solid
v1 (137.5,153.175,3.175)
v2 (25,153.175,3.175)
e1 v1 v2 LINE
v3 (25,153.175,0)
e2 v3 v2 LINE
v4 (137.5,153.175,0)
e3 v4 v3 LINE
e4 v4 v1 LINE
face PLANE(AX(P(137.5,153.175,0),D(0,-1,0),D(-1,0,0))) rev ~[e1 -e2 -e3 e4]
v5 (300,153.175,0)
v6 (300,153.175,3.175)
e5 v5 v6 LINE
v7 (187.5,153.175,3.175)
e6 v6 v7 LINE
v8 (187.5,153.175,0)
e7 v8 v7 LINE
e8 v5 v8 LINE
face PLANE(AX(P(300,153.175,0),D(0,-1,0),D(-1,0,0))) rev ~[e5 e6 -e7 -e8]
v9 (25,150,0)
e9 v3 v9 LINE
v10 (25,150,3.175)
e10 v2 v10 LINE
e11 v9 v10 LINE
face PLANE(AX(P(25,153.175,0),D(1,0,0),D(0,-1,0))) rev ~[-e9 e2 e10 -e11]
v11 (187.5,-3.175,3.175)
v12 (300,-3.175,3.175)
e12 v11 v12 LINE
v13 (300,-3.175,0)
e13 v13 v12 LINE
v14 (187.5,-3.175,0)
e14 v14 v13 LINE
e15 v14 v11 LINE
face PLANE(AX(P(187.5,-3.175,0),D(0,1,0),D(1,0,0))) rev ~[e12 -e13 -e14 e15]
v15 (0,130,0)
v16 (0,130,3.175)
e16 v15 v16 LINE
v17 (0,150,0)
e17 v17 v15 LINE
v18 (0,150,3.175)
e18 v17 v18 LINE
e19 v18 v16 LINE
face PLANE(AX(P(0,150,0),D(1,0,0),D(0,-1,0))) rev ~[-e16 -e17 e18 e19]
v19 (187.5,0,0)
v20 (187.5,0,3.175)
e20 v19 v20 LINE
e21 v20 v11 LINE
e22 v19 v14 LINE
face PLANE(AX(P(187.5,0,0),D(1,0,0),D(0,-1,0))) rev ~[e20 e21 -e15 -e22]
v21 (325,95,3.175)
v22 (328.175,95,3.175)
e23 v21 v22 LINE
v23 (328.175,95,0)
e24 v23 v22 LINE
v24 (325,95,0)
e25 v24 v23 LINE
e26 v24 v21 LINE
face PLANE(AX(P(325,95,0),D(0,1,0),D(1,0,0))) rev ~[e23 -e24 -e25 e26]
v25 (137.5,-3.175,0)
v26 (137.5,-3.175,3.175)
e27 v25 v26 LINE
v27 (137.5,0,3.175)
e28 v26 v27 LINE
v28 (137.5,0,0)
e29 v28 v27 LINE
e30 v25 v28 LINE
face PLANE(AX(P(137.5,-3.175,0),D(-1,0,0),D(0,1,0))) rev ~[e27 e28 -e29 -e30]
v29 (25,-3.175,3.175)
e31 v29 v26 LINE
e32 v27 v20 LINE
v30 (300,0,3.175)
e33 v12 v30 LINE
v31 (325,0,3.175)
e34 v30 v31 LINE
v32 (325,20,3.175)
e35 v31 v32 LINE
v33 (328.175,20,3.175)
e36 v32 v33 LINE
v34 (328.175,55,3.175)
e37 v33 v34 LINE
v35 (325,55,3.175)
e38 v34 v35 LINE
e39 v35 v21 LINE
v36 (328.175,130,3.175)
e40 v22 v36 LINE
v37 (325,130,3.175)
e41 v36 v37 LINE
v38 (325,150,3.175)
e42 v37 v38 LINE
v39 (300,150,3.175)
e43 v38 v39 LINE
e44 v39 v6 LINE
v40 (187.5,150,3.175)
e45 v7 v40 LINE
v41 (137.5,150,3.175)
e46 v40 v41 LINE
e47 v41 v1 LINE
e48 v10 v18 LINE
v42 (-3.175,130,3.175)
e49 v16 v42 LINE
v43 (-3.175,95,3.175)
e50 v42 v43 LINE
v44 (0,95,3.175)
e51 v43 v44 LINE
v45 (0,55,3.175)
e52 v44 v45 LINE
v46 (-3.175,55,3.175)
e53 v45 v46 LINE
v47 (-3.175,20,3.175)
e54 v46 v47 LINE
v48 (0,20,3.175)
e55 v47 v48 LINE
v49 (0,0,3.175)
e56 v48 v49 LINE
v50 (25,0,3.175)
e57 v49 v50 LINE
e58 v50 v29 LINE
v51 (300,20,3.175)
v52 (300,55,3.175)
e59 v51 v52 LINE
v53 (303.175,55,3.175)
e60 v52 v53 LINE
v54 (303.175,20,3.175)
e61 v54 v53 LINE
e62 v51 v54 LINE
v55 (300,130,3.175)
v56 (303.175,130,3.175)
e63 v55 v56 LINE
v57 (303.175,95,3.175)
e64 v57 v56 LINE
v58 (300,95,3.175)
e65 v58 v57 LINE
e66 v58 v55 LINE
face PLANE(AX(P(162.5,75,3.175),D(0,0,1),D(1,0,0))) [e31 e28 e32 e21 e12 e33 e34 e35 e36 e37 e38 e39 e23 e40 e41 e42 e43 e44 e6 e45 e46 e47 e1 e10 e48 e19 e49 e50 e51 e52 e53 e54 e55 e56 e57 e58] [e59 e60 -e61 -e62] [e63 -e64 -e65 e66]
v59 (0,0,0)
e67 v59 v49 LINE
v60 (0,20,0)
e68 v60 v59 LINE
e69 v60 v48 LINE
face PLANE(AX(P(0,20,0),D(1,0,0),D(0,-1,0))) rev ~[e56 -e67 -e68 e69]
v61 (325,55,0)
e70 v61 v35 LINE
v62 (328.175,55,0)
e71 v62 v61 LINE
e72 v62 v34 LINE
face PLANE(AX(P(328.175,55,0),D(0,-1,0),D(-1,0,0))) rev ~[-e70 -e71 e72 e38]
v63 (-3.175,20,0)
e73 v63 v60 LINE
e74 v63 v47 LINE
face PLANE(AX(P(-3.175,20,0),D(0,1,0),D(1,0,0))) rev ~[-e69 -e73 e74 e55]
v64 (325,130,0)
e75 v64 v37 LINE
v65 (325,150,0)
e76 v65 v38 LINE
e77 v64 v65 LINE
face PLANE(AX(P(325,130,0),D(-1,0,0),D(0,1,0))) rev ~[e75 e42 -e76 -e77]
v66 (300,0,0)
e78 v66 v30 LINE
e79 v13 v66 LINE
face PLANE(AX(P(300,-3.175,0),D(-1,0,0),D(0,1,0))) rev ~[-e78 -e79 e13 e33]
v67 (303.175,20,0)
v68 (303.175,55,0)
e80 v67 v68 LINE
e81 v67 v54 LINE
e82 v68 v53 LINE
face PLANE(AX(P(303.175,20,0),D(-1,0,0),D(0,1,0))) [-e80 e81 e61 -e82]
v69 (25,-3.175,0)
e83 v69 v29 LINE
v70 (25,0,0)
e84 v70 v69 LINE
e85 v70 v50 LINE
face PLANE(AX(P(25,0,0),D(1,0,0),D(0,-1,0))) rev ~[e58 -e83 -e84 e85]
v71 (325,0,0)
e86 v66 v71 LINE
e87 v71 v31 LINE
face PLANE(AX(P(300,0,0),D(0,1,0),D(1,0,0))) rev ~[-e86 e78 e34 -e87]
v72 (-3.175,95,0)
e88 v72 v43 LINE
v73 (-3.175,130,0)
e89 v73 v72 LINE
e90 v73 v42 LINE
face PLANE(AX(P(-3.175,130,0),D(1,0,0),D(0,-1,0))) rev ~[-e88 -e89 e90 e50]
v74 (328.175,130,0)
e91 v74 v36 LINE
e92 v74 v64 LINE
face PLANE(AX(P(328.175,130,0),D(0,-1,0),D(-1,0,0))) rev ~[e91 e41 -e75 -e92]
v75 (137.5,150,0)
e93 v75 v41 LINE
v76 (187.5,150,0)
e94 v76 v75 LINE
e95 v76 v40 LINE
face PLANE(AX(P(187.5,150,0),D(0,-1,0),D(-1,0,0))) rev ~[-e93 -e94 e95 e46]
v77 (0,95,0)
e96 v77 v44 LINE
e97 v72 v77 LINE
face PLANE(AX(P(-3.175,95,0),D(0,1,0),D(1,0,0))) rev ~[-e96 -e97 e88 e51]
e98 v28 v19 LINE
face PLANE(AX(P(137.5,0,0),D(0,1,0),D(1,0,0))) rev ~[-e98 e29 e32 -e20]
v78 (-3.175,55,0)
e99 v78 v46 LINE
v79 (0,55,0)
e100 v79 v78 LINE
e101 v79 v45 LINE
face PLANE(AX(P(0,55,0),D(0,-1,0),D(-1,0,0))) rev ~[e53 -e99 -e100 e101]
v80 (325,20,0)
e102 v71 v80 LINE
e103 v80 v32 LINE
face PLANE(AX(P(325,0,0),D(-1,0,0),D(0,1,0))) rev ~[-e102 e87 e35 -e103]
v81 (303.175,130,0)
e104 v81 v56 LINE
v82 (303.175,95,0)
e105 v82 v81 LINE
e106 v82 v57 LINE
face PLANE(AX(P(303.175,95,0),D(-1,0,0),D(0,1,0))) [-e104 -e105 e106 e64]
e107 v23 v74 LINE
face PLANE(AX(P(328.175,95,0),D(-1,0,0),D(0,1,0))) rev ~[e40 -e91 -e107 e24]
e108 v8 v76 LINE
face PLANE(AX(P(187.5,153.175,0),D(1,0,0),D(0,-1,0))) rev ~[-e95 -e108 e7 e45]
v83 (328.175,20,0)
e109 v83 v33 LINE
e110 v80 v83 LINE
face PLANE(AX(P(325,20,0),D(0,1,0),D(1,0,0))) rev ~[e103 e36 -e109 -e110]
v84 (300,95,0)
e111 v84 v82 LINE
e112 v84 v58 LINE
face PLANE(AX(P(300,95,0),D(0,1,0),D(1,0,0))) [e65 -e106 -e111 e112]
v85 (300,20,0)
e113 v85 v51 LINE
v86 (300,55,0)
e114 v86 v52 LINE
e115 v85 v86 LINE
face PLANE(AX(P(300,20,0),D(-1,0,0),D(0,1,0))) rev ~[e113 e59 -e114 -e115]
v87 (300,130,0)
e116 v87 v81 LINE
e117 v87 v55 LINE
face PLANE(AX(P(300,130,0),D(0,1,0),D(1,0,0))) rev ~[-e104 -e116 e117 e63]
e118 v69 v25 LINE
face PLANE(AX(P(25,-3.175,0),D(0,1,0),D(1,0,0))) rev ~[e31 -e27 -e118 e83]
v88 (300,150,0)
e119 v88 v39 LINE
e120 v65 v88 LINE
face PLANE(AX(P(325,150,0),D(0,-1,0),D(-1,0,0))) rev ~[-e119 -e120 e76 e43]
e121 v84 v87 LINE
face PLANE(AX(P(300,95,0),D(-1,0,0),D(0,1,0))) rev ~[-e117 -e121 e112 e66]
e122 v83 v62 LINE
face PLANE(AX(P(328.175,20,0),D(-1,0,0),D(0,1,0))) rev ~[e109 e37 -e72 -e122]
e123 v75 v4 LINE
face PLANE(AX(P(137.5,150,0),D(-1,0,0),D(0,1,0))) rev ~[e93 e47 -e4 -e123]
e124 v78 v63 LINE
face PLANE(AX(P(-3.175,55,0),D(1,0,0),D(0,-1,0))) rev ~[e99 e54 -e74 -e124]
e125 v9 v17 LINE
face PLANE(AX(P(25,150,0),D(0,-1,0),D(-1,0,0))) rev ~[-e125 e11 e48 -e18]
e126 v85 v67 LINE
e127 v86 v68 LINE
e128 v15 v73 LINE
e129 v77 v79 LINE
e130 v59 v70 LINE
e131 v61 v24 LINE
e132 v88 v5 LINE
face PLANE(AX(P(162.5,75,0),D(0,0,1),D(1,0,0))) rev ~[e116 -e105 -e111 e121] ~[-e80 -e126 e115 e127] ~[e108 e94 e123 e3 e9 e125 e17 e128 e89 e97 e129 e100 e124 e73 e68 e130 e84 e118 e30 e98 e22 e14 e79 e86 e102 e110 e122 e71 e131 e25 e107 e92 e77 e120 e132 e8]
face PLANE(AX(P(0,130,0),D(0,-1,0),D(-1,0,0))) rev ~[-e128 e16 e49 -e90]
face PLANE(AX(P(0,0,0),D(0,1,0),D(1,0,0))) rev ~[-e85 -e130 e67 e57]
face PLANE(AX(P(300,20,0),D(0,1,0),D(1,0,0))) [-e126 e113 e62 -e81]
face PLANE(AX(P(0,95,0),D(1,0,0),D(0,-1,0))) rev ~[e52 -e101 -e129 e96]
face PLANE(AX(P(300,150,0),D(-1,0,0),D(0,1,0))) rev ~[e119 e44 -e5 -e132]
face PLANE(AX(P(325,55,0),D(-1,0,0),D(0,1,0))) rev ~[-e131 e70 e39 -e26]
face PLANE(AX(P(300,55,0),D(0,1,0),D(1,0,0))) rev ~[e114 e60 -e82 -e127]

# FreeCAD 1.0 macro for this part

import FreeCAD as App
import Part
import Sketcher
from FreeCAD import Vector
Q = App.Units.Quantity

doc = App.newDocument("Part")
params = doc.addObject("Spreadsheet::Sheet", "Params")
for row, (alias, value) in enumerate([
    ("sketch1_width", "50 mm"),
    ("sketch1_width2", "25 mm"),
    ("sketch1_height", "20 mm"),
    ("sketch1_height2", "35 mm"),
    ("sketch1_height3", "40 mm"),
    ("pad1_length", "3.175 mm"),
], start=1):
    params.set(f"A{row}", alias)
    params.set(f"B{row}", "=" + value)
    params.setAlias(f"B{row}", alias)

body = doc.addObject("PartDesign::Body", "Body")

# Sketch on XY plane
sketch1 = body.newObject("Sketcher::SketchObject", "Sketch")
sketch1.AttachmentSupport = (doc.getObject("XY_Plane"), [""])
sketch1.MapMode = "FlatFace"
sketch1.addGeometry([
    Part.LineSegment(Vector(137.5, 0, 0), Vector(187.5, 0, 0)),  # 0
    Part.LineSegment(Vector(187.5, 0, 0), Vector(187.5, -3.2, 0)),  # 1
    Part.LineSegment(Vector(187.5, -3.2, 0), Vector(300, -3.2, 0)),  # 2
    Part.LineSegment(Vector(300, -3.2, 0), Vector(300, 0, 0)),  # 3
    Part.LineSegment(Vector(300, 0, 0), Vector(325, 0, 0)),  # 4
    Part.LineSegment(Vector(325, 0, 0), Vector(325, 20, 0)),  # 5
    Part.LineSegment(Vector(325, 20, 0), Vector(328.2, 20, 0)),  # 6
    Part.LineSegment(Vector(328.2, 20, 0), Vector(328.2, 55, 0)),  # 7
    Part.LineSegment(Vector(328.2, 55, 0), Vector(325, 55, 0)),  # 8
    Part.LineSegment(Vector(325, 55, 0), Vector(325, 95, 0)),  # 9
    Part.LineSegment(Vector(325, 95, 0), Vector(328.2, 95, 0)),  # 10
    Part.LineSegment(Vector(328.2, 95, 0), Vector(328.2, 130, 0)),  # 11
    Part.LineSegment(Vector(328.2, 130, 0), Vector(325, 130, 0)),  # 12
    Part.LineSegment(Vector(325, 130, 0), Vector(325, 150, 0)),  # 13
    Part.LineSegment(Vector(325, 150, 0), Vector(300, 150, 0)),  # 14
    Part.LineSegment(Vector(300, 150, 0), Vector(300, 153.2, 0)),  # 15
    Part.LineSegment(Vector(300, 153.2, 0), Vector(187.5, 153.2, 0)),  # 16
    Part.LineSegment(Vector(187.5, 153.2, 0), Vector(187.5, 150, 0)),  # 17
    Part.LineSegment(Vector(187.5, 150, 0), Vector(137.5, 150, 0)),  # 18
    Part.LineSegment(Vector(137.5, 150, 0), Vector(137.5, 153.2, 0)),  # 19
    Part.LineSegment(Vector(137.5, 153.2, 0), Vector(25, 153.2, 0)),  # 20
    Part.LineSegment(Vector(25, 153.2, 0), Vector(25, 150, 0)),  # 21
    Part.LineSegment(Vector(25, 150, 0), Vector(0, 150, 0)),  # 22
    Part.LineSegment(Vector(0, 150, 0), Vector(0, 130, 0)),  # 23
    Part.LineSegment(Vector(0, 130, 0), Vector(-3.2, 130, 0)),  # 24
    Part.LineSegment(Vector(-3.2, 130, 0), Vector(-3.2, 95, 0)),  # 25
    Part.LineSegment(Vector(-3.2, 95, 0), Vector(0, 95, 0)),  # 26
    Part.LineSegment(Vector(0, 95, 0), Vector(0, 55, 0)),  # 27
    Part.LineSegment(Vector(0, 55, 0), Vector(-3.2, 55, 0)),  # 28
    Part.LineSegment(Vector(-3.2, 55, 0), Vector(-3.2, 20, 0)),  # 29
    Part.LineSegment(Vector(-3.2, 20, 0), Vector(0, 20, 0)),  # 30
    Part.LineSegment(Vector(0, 20, 0), Vector(0, 0, 0)),  # 31
    Part.LineSegment(Vector(0, 0, 0), Vector(25, 0, 0)),  # 32
    Part.LineSegment(Vector(25, 0, 0), Vector(25, -3.2, 0)),  # 33
    Part.LineSegment(Vector(25, -3.2, 0), Vector(137.5, -3.2, 0)),  # 34
    Part.LineSegment(Vector(137.5, -3.2, 0), Vector(137.5, 0, 0)),  # 35
    Part.LineSegment(Vector(303.2, 20, 0), Vector(300, 20, 0)),  # 36
    Part.LineSegment(Vector(300, 20, 0), Vector(300, 55, 0)),  # 37
    Part.LineSegment(Vector(300, 55, 0), Vector(303.2, 55, 0)),  # 38
    Part.LineSegment(Vector(303.2, 55, 0), Vector(303.2, 20, 0)),  # 39
    Part.LineSegment(Vector(303.2, 95, 0), Vector(300, 95, 0)),  # 40
    Part.LineSegment(Vector(300, 95, 0), Vector(300, 130, 0)),  # 41
    Part.LineSegment(Vector(300, 130, 0), Vector(303.2, 130, 0)),  # 42
    Part.LineSegment(Vector(303.2, 130, 0), Vector(303.2, 95, 0)),  # 43
], False)
sketch1.addConstraint([
    Sketcher.Constraint("Coincident", 0, 2, 1, 1),
    Sketcher.Constraint("Coincident", 1, 2, 2, 1),
    Sketcher.Constraint("Coincident", 2, 2, 3, 1),
    Sketcher.Constraint("Coincident", 3, 2, 4, 1),
    Sketcher.Constraint("Coincident", 4, 2, 5, 1),
    Sketcher.Constraint("Coincident", 5, 2, 6, 1),
    Sketcher.Constraint("Coincident", 6, 2, 7, 1),
    Sketcher.Constraint("Coincident", 7, 2, 8, 1),
    Sketcher.Constraint("Coincident", 8, 2, 9, 1),
    Sketcher.Constraint("Coincident", 9, 2, 10, 1),
    Sketcher.Constraint("Coincident", 10, 2, 11, 1),
    Sketcher.Constraint("Coincident", 11, 2, 12, 1),
    Sketcher.Constraint("Coincident", 12, 2, 13, 1),
    Sketcher.Constraint("Coincident", 13, 2, 14, 1),
    Sketcher.Constraint("Coincident", 14, 2, 15, 1),
    Sketcher.Constraint("Coincident", 15, 2, 16, 1),
    Sketcher.Constraint("Coincident", 16, 2, 17, 1),
    Sketcher.Constraint("Coincident", 17, 2, 18, 1),
    Sketcher.Constraint("Coincident", 18, 2, 19, 1),
    Sketcher.Constraint("Coincident", 19, 2, 20, 1),
    Sketcher.Constraint("Coincident", 20, 2, 21, 1),
    Sketcher.Constraint("Coincident", 21, 2, 22, 1),
    Sketcher.Constraint("Coincident", 22, 2, 23, 1),
    Sketcher.Constraint("Coincident", 23, 2, 24, 1),
    Sketcher.Constraint("Coincident", 24, 2, 25, 1),
    Sketcher.Constraint("Coincident", 25, 2, 26, 1),
    Sketcher.Constraint("Coincident", 26, 2, 27, 1),
    Sketcher.Constraint("Coincident", 27, 2, 28, 1),
    Sketcher.Constraint("Coincident", 28, 2, 29, 1),
    Sketcher.Constraint("Coincident", 29, 2, 30, 1),
    Sketcher.Constraint("Coincident", 30, 2, 31, 1),
    Sketcher.Constraint("Coincident", 31, 2, 32, 1),
    Sketcher.Constraint("Coincident", 32, 2, 33, 1),
    Sketcher.Constraint("Coincident", 33, 2, 34, 1),
    Sketcher.Constraint("Coincident", 34, 2, 35, 1),
    Sketcher.Constraint("Coincident", 35, 2, 0, 1),
    Sketcher.Constraint("Coincident", 36, 2, 37, 1),
    Sketcher.Constraint("Coincident", 37, 2, 38, 1),
    Sketcher.Constraint("Coincident", 38, 2, 39, 1),
    Sketcher.Constraint("Coincident", 39, 2, 36, 1),
    Sketcher.Constraint("Coincident", 40, 2, 41, 1),
    Sketcher.Constraint("Coincident", 41, 2, 42, 1),
    Sketcher.Constraint("Coincident", 42, 2, 43, 1),
    Sketcher.Constraint("Coincident", 43, 2, 40, 1),
    Sketcher.Constraint("Horizontal", 0),
    Sketcher.Constraint("Vertical", 1),
    Sketcher.Constraint("Horizontal", 2),
    Sketcher.Constraint("Vertical", 3),
    Sketcher.Constraint("Horizontal", 4),
    Sketcher.Constraint("Vertical", 5),
    Sketcher.Constraint("Horizontal", 6),
    Sketcher.Constraint("Vertical", 7),
    Sketcher.Constraint("Horizontal", 8),
    Sketcher.Constraint("Vertical", 9),
    Sketcher.Constraint("Horizontal", 10),
    Sketcher.Constraint("Vertical", 11),
    Sketcher.Constraint("Horizontal", 12),
    Sketcher.Constraint("Vertical", 13),
    Sketcher.Constraint("Horizontal", 14),
    Sketcher.Constraint("Vertical", 15),
    Sketcher.Constraint("Horizontal", 16),
    Sketcher.Constraint("Vertical", 17),
    Sketcher.Constraint("Horizontal", 18),
    Sketcher.Constraint("Vertical", 19),
    Sketcher.Constraint("Horizontal", 20),
    Sketcher.Constraint("Vertical", 21),
    Sketcher.Constraint("Horizontal", 22),
    Sketcher.Constraint("Vertical", 23),
    Sketcher.Constraint("Horizontal", 24),
    Sketcher.Constraint("Vertical", 25),
    Sketcher.Constraint("Horizontal", 26),
    Sketcher.Constraint("Vertical", 27),
    Sketcher.Constraint("Horizontal", 28),
    Sketcher.Constraint("Vertical", 29),
    Sketcher.Constraint("Horizontal", 30),
    Sketcher.Constraint("Vertical", 31),
    Sketcher.Constraint("Horizontal", 32),
    Sketcher.Constraint("Vertical", 33),
    Sketcher.Constraint("Horizontal", 34),
    Sketcher.Constraint("Vertical", 35),
    Sketcher.Constraint("Horizontal", 36),
    Sketcher.Constraint("Vertical", 37),
    Sketcher.Constraint("Horizontal", 38),
    Sketcher.Constraint("Vertical", 39),
    Sketcher.Constraint("Horizontal", 40),
    Sketcher.Constraint("Vertical", 41),
    Sketcher.Constraint("Horizontal", 42),
    Sketcher.Constraint("Vertical", 43),
    Sketcher.Constraint("Coincident", 31, 2, -1, 1),
    Sketcher.Constraint("PointOnObject", 0, 2, -1),
    Sketcher.Constraint("PointOnObject", 3, 2, -1),
    Sketcher.Constraint("PointOnObject", 22, 2, -2),
    Sketcher.Constraint("PointOnObject", 26, 2, -2),
    Sketcher.Constraint("Horizontal", 14, 2, 17, 2),
    Sketcher.Constraint("Horizontal", 16, 2, 19, 2),
    Sketcher.Constraint("Horizontal", 18, 2, 21, 2),
    Sketcher.Constraint("Horizontal", 12, 2, 23, 2),
    Sketcher.Constraint("Horizontal", 10, 2, 25, 2),
    Sketcher.Constraint("Horizontal", 8, 2, 27, 2),
    Sketcher.Constraint("Horizontal", 6, 2, 29, 2),
    Sketcher.Constraint("Horizontal", 2, 2, 33, 2),
    Sketcher.Constraint("Horizontal", 30, 2, 36, 2),
    Sketcher.Constraint("Horizontal", 28, 2, 37, 2),
    Sketcher.Constraint("Horizontal", 26, 2, 40, 2),
    Sketcher.Constraint("Horizontal", 24, 2, 41, 2),
    Sketcher.Constraint("Vertical", 5, 2, 8, 2),
    Sketcher.Constraint("Vertical", 7, 2, 10, 2),
    Sketcher.Constraint("Vertical", 9, 2, 12, 2),
    Sketcher.Constraint("Vertical", 3, 2, 14, 2),
    Sketcher.Constraint("Vertical", 1, 2, 16, 2),
    Sketcher.Constraint("Vertical", 25, 2, 28, 2),
    Sketcher.Constraint("Vertical", 21, 2, 32, 2),
    Sketcher.Constraint("Vertical", 19, 2, 34, 2),
    Sketcher.Constraint("Vertical", 15, 2, 36, 2),
    Sketcher.Constraint("Vertical", 37, 2, 40, 2),
    Sketcher.Constraint("Vertical", 39, 2, 42, 2),
    Sketcher.Constraint("Equal", 16, 20),
    Sketcher.Constraint("Equal", 14, 22),
    Sketcher.Constraint("Equal", 12, 24),
    Sketcher.Constraint("Equal", 30, 36),
    Sketcher.Constraint("Equal", 42, 1),
    Sketcher.Constraint("Equal", 7, 11),
    Sketcher.Constraint("Equal", 5, 13),
    Sketcher.Constraint("Equal", 3, 15),
    Sketcher.Constraint("DistanceX", 0, 1, 0, 2, Q("50 mm")),
    Sketcher.Constraint("DistanceX", 4, 1, 4, 2, Q("25 mm")),
    Sketcher.Constraint("DistanceY", 5, 1, 5, 2, Q("20 mm")),
    Sketcher.Constraint("DistanceY", 7, 1, 7, 2, Q("35 mm")),
    Sketcher.Constraint("DistanceY", 9, 1, 9, 2, Q("40 mm")),
    Sketcher.Constraint("DistanceX", 2, 1, 2, 2, Q("112.5 mm")),
    Sketcher.Constraint("DistanceX", 6, 1, 6, 2, Q("3.175 mm")),
])
sketch1.setExpression("Constraints[124]", "Params.sketch1_width")
sketch1.setExpression("Constraints[125]", "Params.sketch1_width2")
sketch1.setExpression("Constraints[126]", "Params.sketch1_height")
sketch1.setExpression("Constraints[127]", "Params.sketch1_height2")
sketch1.setExpression("Constraints[128]", "Params.sketch1_height3")
pad1 = body.newObject("PartDesign::Pad", "Pad")
pad1.Profile = sketch1
pad1.setExpression("Length", "Params.pad1_length")

doc.recompute()
